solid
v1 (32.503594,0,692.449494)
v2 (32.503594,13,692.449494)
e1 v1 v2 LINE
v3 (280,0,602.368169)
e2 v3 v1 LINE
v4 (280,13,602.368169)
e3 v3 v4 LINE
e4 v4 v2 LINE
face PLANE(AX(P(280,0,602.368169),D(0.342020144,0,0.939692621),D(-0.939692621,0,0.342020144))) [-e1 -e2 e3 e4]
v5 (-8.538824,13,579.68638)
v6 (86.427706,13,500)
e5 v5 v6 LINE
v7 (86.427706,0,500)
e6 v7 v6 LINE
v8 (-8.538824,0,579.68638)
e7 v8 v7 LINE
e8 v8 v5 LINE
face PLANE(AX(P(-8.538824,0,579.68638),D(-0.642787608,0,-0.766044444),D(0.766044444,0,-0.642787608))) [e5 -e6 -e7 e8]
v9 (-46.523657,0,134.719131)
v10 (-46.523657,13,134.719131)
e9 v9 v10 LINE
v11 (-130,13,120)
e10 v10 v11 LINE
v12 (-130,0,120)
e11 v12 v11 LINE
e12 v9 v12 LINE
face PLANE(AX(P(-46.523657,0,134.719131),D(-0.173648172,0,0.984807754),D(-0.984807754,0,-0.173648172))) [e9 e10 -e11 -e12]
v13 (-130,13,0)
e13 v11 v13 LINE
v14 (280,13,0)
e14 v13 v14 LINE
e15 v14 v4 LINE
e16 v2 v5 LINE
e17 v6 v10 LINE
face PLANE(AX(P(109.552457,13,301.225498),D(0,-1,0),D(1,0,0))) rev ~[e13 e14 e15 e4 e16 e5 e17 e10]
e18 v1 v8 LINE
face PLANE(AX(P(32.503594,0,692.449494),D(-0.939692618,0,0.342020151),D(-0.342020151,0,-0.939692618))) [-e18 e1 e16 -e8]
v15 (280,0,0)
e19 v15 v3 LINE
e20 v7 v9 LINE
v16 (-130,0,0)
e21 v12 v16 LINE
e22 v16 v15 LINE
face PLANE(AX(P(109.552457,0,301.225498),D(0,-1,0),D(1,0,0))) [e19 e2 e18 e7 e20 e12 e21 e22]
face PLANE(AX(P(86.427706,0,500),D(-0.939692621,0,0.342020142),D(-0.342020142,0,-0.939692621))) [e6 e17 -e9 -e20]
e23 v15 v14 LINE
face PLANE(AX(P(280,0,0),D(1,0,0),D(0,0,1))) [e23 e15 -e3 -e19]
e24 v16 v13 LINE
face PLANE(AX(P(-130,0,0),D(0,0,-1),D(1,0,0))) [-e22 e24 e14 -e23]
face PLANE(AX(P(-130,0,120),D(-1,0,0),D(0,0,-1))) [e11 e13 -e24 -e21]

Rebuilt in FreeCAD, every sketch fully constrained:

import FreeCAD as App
import Part
import Sketcher

V = App.Vector
Q = App.Units.Quantity

doc = App.newDocument("Part")
body = doc.addObject("PartDesign::Body", "Body")

# Sketch on XZ plane
sketch1 = body.newObject("Sketcher::SketchObject", "Sketch")
sketch1.AttachmentSupport = (doc.getObject("XZ_Plane"), [""])
sketch1.MapMode = "FlatFace"
sketch1.addGeometry([
    Part.LineSegment(V(280, 0, 0), V(280, 602, 0)),  # 0
    Part.LineSegment(V(280, 602, 0), V(33, 692, 0)),  # 1
    Part.LineSegment(V(33, 692, 0), V(-9, 580, 0)),  # 2
    Part.LineSegment(V(-9, 580, 0), V(86, 500, 0)),  # 3
    Part.LineSegment(V(86, 500, 0), V(-47, 135, 0)),  # 4
    Part.LineSegment(V(-47, 135, 0), V(-130, 120, 0)),  # 5
    Part.LineSegment(V(-130, 120, 0), V(-130, 0, 0)),  # 6
    Part.LineSegment(V(-130, 0, 0), V(280, 0, 0)),  # 7
], False)
sketch1.addConstraint([
    Sketcher.Constraint("Coincident", 0, 2, 1, 1),
    Sketcher.Constraint("Coincident", 1, 2, 2, 1),
    Sketcher.Constraint("Coincident", 2, 2, 3, 1),
    Sketcher.Constraint("Coincident", 3, 2, 4, 1),
    Sketcher.Constraint("Coincident", 4, 2, 5, 1),
    Sketcher.Constraint("Coincident", 5, 2, 6, 1),
    Sketcher.Constraint("Coincident", 6, 2, 7, 1),
    Sketcher.Constraint("Coincident", 7, 2, 0, 1),
    Sketcher.Constraint("Vertical", 0),
    Sketcher.Constraint("Vertical", 6),
    Sketcher.Constraint("Horizontal", 7),
    Sketcher.Constraint("PointOnObject", 6, 2, -1),
    Sketcher.Constraint("Perpendicular", 1, 2),
    Sketcher.Constraint("Parallel", 2, 4),
    Sketcher.Constraint("DistanceX", 7, 1, 7, 2, Q("410 mm")),
    Sketcher.Constraint("DistanceY", 6, 2, 6, 1, Q("120 mm")),
    Sketcher.Constraint("Angle", 1, Q("160 deg")),
    Sketcher.Constraint("Angle", 3, Q("-40 deg")),
    Sketcher.Constraint("Angle", 5, Q("-170 deg")),
    Sketcher.Constraint("Distance", 2, Q("120 mm")),
    Sketcher.Constraint("DistanceX", -1, 1, 0, 2, Q("280 mm")),
    Sketcher.Constraint("DistanceY", -1, 1, 3, 2, Q("500 mm")),
    Sketcher.Constraint("Distance", 3, Q("123.97 mm")),
    Sketcher.Constraint("Distance", 5, Q("84.7641 mm")),
])
pad1 = body.newObject("PartDesign::Pad", "Pad")
pad1.Profile = sketch1
pad1.Length = 13
pad1.Reversed = True

doc.recompute()
